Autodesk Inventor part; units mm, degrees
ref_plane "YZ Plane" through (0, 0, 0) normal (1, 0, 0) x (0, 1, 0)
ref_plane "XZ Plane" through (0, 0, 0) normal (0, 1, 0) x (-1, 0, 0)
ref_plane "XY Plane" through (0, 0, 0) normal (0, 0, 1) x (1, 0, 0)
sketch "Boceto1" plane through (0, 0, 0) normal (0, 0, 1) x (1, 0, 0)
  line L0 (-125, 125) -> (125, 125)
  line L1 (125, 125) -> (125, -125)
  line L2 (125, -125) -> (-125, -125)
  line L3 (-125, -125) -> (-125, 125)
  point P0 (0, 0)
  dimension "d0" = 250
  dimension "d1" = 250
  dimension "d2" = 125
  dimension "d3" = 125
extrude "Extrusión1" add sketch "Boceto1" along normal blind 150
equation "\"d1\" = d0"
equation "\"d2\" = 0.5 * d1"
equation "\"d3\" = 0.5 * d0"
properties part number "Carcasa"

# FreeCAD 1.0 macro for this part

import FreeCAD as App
import Part
import Sketcher

V = App.Vector


def add_polygon(sketch, points):
    """Adds a closed chain of lines whose ends are joined by coincident constraints."""
    first, n = sketch.GeometryCount, len(points)
    for a, b in zip(points, points[1:] + points[:1]):
        sketch.addGeometry(Part.LineSegment(App.Vector(*a, 0), App.Vector(*b, 0)), False)
    for i in range(n):
        sketch.addConstraint(Sketcher.Constraint("Coincident", first + i, 2, first + (i + 1) % n, 1))

doc = App.newDocument("Part")
params = doc.addObject("Spreadsheet::Sheet", "Params")
for row, (alias, value) in enumerate([
    ("sketch1_width", "250 mm"),
    ("pad1_length", "150 mm"),
], start=1):
    params.set(f"A{row}", alias)
    params.set(f"B{row}", "=" + value)
    params.setAlias(f"B{row}", alias)

body = doc.addObject("PartDesign::Body", "Body")

# Sketch on XY plane
sketch1 = body.newObject("Sketcher::SketchObject", "Sketch")
sketch1.AttachmentSupport = (doc.getObject("XY_Plane"), [""])
sketch1.MapMode = "FlatFace"
add_polygon(sketch1, [(125, 125), (-125, 125), (-125, -125), (125, -125)])  # lines 0-3
sketch1.addConstraint([
    Sketcher.Constraint("Horizontal", 0),
    Sketcher.Constraint("Vertical", 1),
    Sketcher.Constraint("Horizontal", 2),
    Sketcher.Constraint("Vertical", 3),
    Sketcher.Constraint("Symmetric", 0, 2, 2, 2, -1, 1),
    Sketcher.Constraint("Equal", 2, 1),
    Sketcher.Constraint("DistanceX", 0, 2, 0, 1, 250.0),
])
sketch1.setExpression("Constraints[10]", "Params.sketch1_width")
pad1 = body.newObject("PartDesign::Pad", "Pad")
pad1.Profile = sketch1
pad1.setExpression("Length", "Params.pad1_length")

doc.recompute()
